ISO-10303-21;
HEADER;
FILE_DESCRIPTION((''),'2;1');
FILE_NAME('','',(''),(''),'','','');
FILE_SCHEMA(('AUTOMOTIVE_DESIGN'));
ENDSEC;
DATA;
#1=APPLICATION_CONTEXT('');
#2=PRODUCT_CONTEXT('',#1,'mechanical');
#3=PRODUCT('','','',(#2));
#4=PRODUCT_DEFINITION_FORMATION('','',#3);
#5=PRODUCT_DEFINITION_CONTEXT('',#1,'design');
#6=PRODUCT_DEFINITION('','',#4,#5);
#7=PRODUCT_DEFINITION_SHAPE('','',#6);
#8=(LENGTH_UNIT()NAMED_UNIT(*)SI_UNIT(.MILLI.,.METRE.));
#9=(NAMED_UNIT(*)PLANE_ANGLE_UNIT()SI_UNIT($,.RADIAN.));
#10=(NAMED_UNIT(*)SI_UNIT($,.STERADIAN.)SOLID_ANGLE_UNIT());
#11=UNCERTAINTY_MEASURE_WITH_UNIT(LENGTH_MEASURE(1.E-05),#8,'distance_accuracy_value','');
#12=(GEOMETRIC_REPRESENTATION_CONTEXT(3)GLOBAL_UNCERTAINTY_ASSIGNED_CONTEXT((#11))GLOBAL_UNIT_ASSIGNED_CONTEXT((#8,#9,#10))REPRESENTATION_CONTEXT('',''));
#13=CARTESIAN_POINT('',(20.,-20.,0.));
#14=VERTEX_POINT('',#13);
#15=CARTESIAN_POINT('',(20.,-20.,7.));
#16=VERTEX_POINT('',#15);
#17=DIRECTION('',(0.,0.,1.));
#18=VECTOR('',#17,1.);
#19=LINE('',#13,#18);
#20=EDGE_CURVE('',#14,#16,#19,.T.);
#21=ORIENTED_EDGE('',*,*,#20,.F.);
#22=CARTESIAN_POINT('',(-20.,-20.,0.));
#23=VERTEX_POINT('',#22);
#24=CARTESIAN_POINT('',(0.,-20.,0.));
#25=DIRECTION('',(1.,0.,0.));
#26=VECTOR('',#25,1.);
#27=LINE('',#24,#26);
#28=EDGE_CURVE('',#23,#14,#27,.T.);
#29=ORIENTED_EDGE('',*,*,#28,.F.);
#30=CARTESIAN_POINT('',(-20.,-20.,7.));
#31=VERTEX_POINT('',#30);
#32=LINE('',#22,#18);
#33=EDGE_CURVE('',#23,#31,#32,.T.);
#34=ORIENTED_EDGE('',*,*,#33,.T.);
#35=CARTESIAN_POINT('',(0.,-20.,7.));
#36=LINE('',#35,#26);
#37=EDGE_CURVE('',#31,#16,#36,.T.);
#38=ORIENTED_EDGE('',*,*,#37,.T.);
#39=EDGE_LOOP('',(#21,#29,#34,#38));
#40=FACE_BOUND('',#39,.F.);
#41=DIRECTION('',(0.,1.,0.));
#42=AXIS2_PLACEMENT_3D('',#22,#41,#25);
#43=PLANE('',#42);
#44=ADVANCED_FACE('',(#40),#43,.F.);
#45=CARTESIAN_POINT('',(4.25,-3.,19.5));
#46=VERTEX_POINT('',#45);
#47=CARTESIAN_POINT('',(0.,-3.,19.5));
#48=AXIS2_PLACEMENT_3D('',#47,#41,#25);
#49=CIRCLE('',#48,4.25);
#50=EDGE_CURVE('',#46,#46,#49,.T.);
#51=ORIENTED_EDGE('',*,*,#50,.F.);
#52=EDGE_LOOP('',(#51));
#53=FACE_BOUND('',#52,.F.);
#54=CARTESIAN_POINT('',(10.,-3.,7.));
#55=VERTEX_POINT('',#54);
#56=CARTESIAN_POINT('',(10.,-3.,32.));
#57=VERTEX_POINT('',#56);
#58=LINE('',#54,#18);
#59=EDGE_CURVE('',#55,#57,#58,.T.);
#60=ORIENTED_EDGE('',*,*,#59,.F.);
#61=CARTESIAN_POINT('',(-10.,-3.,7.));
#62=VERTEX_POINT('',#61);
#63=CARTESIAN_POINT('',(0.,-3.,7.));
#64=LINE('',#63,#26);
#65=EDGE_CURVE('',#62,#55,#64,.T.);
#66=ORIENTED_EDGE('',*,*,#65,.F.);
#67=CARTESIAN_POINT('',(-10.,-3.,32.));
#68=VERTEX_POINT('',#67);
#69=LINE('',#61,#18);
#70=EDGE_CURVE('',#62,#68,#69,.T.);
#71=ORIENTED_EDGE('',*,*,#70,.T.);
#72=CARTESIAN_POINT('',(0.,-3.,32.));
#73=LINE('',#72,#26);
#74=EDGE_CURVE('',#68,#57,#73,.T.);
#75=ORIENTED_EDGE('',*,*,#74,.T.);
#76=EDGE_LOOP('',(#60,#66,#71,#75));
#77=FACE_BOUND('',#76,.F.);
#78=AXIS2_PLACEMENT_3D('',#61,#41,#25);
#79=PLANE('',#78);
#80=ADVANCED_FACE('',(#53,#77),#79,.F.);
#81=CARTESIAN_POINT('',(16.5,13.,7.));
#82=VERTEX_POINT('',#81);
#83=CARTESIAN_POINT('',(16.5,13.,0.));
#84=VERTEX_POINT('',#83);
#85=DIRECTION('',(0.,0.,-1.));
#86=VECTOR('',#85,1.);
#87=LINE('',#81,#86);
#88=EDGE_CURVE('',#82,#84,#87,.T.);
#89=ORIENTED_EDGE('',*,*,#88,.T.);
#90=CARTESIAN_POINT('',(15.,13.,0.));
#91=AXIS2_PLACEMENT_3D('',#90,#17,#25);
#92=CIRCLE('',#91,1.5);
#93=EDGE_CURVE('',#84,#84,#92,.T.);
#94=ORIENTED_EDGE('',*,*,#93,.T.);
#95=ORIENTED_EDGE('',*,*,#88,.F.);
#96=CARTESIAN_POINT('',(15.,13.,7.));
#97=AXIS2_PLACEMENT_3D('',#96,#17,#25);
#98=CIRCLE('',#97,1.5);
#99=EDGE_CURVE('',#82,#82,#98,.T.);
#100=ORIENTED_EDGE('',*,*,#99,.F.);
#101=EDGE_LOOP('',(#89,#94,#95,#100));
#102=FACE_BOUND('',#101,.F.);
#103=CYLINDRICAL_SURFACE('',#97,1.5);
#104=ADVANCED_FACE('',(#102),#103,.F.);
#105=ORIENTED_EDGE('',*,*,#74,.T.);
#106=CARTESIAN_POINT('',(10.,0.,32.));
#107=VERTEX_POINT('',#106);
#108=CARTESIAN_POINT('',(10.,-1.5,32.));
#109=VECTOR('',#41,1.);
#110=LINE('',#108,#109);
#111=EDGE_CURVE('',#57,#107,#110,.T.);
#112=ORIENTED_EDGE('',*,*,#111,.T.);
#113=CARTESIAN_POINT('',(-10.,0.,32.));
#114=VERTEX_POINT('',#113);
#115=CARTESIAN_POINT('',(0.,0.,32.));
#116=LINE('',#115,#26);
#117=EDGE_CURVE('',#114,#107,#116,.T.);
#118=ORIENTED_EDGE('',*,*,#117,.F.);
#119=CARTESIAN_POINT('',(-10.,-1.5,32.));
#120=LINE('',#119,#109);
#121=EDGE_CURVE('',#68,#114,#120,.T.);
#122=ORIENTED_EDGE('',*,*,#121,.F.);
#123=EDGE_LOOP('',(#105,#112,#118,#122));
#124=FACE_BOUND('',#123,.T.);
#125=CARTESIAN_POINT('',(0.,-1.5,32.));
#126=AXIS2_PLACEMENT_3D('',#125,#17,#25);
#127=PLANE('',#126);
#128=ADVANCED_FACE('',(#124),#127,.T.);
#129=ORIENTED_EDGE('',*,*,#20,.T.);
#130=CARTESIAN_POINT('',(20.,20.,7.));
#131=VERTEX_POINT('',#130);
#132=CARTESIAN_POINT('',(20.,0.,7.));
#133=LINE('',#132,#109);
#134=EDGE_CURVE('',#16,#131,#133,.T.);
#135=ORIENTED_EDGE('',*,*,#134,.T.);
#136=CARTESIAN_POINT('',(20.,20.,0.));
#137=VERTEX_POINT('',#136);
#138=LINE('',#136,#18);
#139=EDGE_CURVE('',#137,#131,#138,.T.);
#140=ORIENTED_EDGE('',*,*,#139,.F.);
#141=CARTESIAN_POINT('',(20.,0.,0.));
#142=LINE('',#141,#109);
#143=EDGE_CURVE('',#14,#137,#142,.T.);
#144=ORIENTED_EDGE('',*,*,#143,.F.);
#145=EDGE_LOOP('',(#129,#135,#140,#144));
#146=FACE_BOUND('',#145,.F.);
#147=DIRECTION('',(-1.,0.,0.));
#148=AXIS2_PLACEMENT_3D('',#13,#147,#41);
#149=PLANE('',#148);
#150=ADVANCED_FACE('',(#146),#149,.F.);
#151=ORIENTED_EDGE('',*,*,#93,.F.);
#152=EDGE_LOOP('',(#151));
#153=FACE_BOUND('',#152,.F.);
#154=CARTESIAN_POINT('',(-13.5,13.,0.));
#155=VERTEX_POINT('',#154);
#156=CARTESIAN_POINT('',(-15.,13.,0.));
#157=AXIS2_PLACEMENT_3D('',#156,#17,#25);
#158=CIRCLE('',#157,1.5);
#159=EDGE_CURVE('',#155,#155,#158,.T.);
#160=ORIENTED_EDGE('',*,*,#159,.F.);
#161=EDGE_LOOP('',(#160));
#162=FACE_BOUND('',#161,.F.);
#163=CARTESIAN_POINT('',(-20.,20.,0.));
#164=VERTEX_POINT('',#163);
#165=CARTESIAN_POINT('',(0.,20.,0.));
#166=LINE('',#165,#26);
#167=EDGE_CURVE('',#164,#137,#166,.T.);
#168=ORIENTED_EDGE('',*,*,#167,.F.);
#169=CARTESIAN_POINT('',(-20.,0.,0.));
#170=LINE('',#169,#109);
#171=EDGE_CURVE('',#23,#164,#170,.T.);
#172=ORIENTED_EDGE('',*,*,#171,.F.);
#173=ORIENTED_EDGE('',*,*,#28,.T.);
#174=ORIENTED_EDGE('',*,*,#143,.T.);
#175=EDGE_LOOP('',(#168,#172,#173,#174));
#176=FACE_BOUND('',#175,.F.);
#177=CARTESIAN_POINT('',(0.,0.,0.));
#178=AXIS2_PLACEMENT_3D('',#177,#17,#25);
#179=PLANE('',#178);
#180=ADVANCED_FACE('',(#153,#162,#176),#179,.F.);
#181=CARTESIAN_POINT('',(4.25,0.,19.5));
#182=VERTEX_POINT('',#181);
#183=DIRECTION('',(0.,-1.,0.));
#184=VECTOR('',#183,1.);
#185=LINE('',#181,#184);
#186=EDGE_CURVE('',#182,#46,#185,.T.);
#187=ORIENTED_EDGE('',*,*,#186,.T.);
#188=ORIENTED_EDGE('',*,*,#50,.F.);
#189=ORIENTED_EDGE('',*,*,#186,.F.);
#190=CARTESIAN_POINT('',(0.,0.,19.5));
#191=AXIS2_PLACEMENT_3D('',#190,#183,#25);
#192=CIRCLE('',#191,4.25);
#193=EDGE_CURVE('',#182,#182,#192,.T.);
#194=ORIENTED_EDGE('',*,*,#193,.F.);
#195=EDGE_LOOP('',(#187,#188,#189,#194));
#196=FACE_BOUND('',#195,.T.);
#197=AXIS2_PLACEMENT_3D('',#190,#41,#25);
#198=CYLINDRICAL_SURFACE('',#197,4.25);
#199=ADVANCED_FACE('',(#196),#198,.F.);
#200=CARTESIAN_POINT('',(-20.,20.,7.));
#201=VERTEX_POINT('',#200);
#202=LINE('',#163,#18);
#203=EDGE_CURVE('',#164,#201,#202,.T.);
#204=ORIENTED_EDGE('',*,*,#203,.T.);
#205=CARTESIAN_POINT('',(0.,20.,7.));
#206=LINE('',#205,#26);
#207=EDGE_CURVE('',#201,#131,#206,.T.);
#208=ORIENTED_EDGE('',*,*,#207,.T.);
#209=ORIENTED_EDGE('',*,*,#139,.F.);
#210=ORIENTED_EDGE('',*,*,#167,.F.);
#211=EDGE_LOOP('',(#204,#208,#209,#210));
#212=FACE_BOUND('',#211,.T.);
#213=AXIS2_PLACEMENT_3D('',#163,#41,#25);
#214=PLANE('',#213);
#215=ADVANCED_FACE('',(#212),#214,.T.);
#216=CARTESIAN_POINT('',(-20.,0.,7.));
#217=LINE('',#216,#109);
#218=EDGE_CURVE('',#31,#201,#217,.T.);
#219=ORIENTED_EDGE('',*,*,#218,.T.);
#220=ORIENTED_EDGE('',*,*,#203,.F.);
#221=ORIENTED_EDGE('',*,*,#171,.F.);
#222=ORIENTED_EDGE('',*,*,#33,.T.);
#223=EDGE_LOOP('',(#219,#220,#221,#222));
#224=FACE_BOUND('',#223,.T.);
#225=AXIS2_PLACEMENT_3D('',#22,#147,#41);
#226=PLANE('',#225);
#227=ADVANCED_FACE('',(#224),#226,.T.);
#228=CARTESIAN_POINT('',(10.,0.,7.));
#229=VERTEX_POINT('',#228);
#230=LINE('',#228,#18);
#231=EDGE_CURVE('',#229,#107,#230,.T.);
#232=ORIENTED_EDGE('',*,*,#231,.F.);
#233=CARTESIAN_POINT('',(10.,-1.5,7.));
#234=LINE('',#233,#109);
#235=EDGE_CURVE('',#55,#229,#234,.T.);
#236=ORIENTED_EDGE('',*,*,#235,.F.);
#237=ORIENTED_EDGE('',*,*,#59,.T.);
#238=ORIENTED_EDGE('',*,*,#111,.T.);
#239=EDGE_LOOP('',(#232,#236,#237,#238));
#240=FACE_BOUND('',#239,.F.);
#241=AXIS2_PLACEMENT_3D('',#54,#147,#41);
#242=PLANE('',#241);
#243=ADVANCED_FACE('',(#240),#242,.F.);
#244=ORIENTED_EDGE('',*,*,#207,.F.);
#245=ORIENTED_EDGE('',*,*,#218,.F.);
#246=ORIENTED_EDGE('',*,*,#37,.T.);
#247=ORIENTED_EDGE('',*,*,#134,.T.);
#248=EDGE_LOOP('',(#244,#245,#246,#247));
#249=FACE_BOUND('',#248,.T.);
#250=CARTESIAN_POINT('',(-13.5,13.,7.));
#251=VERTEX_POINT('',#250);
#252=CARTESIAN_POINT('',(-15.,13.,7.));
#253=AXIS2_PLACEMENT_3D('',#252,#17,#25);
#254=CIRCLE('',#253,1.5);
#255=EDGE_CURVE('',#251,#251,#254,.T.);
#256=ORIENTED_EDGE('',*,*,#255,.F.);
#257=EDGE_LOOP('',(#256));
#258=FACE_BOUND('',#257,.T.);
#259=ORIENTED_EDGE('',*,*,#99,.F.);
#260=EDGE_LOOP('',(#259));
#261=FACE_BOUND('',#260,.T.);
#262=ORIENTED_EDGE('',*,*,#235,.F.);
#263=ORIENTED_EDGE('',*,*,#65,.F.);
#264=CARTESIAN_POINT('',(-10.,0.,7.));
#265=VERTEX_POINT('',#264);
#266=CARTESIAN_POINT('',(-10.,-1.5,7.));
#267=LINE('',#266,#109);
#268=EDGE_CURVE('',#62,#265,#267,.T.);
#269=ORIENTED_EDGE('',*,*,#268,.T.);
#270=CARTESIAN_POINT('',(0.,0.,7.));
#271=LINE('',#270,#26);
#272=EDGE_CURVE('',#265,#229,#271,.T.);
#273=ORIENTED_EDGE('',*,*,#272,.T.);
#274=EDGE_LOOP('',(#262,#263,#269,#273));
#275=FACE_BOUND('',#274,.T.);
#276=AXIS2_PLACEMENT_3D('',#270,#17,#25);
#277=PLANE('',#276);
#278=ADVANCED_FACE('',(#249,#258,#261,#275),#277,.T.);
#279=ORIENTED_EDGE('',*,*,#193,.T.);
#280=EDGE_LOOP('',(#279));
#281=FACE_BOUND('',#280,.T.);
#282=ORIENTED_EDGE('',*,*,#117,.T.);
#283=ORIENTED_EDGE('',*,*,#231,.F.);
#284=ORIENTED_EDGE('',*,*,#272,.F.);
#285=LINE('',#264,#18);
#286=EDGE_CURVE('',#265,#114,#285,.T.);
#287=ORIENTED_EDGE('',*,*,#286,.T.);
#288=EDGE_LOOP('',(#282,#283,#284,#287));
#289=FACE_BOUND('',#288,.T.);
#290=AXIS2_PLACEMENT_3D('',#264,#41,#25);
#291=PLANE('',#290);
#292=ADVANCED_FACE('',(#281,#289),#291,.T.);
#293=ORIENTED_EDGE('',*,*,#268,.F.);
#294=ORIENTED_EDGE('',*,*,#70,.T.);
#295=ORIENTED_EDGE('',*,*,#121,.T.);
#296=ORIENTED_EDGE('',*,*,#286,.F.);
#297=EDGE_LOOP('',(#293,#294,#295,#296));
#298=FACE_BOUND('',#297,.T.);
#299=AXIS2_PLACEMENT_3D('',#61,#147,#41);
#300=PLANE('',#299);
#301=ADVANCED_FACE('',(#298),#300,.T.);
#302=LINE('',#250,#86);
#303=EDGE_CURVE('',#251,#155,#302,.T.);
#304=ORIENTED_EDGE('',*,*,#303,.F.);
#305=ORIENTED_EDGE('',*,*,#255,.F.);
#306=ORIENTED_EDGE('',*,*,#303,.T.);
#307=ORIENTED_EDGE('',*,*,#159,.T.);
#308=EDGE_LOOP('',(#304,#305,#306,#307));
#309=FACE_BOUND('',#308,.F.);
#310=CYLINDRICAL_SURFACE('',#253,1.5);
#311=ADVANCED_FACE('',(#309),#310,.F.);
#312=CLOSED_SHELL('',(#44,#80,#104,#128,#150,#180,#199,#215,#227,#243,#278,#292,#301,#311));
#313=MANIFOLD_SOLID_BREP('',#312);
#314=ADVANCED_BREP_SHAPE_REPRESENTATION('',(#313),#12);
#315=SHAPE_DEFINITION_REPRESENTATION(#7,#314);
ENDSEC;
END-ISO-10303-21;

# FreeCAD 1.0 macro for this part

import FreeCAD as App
import Part
import Sketcher

V = App.Vector
Q = App.Units.Quantity


def add_polygon(sketch, points):
    """Adds a closed chain of lines whose ends are joined by coincident constraints."""
    first, n = sketch.GeometryCount, len(points)
    for a, b in zip(points, points[1:] + points[:1]):
        sketch.addGeometry(Part.LineSegment(App.Vector(*a, 0), App.Vector(*b, 0)), False)
    for i in range(n):
        sketch.addConstraint(Sketcher.Constraint("Coincident", first + i, 2, first + (i + 1) % n, 1))

doc = App.newDocument("Part")
body = doc.addObject("PartDesign::Body", "Body")

# Sketch on XY plane
sketch1 = body.newObject("Sketcher::SketchObject", "Sketch")
sketch1.AttachmentSupport = (doc.getObject("XY_Plane"), [""])
sketch1.MapMode = "FlatFace"
add_polygon(sketch1, [(-20, 20), (-20, -20), (20, -20), (20, 20)])  # lines 0-3
sketch1.addConstraint([
    Sketcher.Constraint("Vertical", 0),
    Sketcher.Constraint("Horizontal", 1),
    Sketcher.Constraint("Vertical", 2),
    Sketcher.Constraint("Horizontal", 3),
    Sketcher.Constraint("Symmetric", 0, 2, 2, 2, -1, 1),
    Sketcher.Constraint("Equal", 3, 0),
    Sketcher.Constraint("DistanceX", 1, 1, 1, 2, Q("40 mm")),
])
pad1 = body.newObject("PartDesign::Pad", "Pad")
pad1.Profile = sketch1
pad1.Length = 7

# Sketch on XY plane
sketch2 = body.newObject("Sketcher::SketchObject", "Sketch001")
sketch2.AttachmentSupport = (doc.getObject("XY_Plane"), [""])
sketch2.MapMode = "FlatFace"
sketch2.AttachmentOffset = App.Placement(V(0, 0, 7), App.Rotation())
add_polygon(sketch2, [(-10, 0), (-10, -3), (10, -3), (10, 0)])  # lines 0-3
sketch2.addConstraint([
    Sketcher.Constraint("Vertical", 0),
    Sketcher.Constraint("Horizontal", 1),
    Sketcher.Constraint("Vertical", 2),
    Sketcher.Constraint("Horizontal", 3),
    Sketcher.Constraint("Symmetric", 2, 2, 3, 2, -1, 1),
    Sketcher.Constraint("DistanceX", 1, 1, 1, 2, Q("20 mm")),
    Sketcher.Constraint("DistanceY", 0, 2, 0, 1, Q("3 mm")),
])
pad2 = body.newObject("PartDesign::Pad", "Pad001")
pad2.Profile = sketch2
pad2.Length = 25

# Sketch on XY plane
sketch3 = body.newObject("Sketcher::SketchObject", "Sketch002")
sketch3.AttachmentSupport = (doc.getObject("XY_Plane"), [""])
sketch3.MapMode = "FlatFace"
sketch3.AttachmentOffset = App.Placement(V(0, 0, 7), App.Rotation())
sketch3.addGeometry([
    Part.Circle(V(-15, 13, 0), V(0, 0, 1), 1.5),
    Part.Circle(V(15, 13, 0), V(0, 0, 1), 1.5),
], False)
sketch3.addConstraint([
    Sketcher.Constraint("Equal", 0, 1),
    Sketcher.Constraint("Symmetric", 0, 3, 1, 3, -2),
    Sketcher.Constraint("Diameter", 0, Q("3 mm")),
    Sketcher.Constraint("DistanceX", 0, 3, -1, 1, Q("15 mm")),
    Sketcher.Constraint("DistanceY", -1, 1, 0, 3, Q("13 mm")),
])
pocket1 = body.newObject("PartDesign::Pocket", "Pocket")
pocket1.Profile = sketch3
pocket1.Length = 25

# Sketch on XZ plane
sketch4 = body.newObject("Sketcher::SketchObject", "Sketch003")
sketch4.AttachmentSupport = (doc.getObject("XZ_Plane"), [""])
sketch4.MapMode = "FlatFace"
sketch4.addGeometry(Part.Circle(V(0, 19.5, 0), V(0, 0, 1), 4.2), False)
sketch4.addConstraint([
    Sketcher.Constraint("PointOnObject", 0, 3, -2),
    Sketcher.Constraint("Diameter", 0, Q("8.5 mm")),
    Sketcher.Constraint("DistanceY", -1, 1, 0, 3, Q("19.5 mm")),
])
pocket2 = body.newObject("PartDesign::Pocket", "Pocket001")
pocket2.Profile = sketch4
pocket2.Length = 25
pocket2.Reversed = True

doc.recompute()
